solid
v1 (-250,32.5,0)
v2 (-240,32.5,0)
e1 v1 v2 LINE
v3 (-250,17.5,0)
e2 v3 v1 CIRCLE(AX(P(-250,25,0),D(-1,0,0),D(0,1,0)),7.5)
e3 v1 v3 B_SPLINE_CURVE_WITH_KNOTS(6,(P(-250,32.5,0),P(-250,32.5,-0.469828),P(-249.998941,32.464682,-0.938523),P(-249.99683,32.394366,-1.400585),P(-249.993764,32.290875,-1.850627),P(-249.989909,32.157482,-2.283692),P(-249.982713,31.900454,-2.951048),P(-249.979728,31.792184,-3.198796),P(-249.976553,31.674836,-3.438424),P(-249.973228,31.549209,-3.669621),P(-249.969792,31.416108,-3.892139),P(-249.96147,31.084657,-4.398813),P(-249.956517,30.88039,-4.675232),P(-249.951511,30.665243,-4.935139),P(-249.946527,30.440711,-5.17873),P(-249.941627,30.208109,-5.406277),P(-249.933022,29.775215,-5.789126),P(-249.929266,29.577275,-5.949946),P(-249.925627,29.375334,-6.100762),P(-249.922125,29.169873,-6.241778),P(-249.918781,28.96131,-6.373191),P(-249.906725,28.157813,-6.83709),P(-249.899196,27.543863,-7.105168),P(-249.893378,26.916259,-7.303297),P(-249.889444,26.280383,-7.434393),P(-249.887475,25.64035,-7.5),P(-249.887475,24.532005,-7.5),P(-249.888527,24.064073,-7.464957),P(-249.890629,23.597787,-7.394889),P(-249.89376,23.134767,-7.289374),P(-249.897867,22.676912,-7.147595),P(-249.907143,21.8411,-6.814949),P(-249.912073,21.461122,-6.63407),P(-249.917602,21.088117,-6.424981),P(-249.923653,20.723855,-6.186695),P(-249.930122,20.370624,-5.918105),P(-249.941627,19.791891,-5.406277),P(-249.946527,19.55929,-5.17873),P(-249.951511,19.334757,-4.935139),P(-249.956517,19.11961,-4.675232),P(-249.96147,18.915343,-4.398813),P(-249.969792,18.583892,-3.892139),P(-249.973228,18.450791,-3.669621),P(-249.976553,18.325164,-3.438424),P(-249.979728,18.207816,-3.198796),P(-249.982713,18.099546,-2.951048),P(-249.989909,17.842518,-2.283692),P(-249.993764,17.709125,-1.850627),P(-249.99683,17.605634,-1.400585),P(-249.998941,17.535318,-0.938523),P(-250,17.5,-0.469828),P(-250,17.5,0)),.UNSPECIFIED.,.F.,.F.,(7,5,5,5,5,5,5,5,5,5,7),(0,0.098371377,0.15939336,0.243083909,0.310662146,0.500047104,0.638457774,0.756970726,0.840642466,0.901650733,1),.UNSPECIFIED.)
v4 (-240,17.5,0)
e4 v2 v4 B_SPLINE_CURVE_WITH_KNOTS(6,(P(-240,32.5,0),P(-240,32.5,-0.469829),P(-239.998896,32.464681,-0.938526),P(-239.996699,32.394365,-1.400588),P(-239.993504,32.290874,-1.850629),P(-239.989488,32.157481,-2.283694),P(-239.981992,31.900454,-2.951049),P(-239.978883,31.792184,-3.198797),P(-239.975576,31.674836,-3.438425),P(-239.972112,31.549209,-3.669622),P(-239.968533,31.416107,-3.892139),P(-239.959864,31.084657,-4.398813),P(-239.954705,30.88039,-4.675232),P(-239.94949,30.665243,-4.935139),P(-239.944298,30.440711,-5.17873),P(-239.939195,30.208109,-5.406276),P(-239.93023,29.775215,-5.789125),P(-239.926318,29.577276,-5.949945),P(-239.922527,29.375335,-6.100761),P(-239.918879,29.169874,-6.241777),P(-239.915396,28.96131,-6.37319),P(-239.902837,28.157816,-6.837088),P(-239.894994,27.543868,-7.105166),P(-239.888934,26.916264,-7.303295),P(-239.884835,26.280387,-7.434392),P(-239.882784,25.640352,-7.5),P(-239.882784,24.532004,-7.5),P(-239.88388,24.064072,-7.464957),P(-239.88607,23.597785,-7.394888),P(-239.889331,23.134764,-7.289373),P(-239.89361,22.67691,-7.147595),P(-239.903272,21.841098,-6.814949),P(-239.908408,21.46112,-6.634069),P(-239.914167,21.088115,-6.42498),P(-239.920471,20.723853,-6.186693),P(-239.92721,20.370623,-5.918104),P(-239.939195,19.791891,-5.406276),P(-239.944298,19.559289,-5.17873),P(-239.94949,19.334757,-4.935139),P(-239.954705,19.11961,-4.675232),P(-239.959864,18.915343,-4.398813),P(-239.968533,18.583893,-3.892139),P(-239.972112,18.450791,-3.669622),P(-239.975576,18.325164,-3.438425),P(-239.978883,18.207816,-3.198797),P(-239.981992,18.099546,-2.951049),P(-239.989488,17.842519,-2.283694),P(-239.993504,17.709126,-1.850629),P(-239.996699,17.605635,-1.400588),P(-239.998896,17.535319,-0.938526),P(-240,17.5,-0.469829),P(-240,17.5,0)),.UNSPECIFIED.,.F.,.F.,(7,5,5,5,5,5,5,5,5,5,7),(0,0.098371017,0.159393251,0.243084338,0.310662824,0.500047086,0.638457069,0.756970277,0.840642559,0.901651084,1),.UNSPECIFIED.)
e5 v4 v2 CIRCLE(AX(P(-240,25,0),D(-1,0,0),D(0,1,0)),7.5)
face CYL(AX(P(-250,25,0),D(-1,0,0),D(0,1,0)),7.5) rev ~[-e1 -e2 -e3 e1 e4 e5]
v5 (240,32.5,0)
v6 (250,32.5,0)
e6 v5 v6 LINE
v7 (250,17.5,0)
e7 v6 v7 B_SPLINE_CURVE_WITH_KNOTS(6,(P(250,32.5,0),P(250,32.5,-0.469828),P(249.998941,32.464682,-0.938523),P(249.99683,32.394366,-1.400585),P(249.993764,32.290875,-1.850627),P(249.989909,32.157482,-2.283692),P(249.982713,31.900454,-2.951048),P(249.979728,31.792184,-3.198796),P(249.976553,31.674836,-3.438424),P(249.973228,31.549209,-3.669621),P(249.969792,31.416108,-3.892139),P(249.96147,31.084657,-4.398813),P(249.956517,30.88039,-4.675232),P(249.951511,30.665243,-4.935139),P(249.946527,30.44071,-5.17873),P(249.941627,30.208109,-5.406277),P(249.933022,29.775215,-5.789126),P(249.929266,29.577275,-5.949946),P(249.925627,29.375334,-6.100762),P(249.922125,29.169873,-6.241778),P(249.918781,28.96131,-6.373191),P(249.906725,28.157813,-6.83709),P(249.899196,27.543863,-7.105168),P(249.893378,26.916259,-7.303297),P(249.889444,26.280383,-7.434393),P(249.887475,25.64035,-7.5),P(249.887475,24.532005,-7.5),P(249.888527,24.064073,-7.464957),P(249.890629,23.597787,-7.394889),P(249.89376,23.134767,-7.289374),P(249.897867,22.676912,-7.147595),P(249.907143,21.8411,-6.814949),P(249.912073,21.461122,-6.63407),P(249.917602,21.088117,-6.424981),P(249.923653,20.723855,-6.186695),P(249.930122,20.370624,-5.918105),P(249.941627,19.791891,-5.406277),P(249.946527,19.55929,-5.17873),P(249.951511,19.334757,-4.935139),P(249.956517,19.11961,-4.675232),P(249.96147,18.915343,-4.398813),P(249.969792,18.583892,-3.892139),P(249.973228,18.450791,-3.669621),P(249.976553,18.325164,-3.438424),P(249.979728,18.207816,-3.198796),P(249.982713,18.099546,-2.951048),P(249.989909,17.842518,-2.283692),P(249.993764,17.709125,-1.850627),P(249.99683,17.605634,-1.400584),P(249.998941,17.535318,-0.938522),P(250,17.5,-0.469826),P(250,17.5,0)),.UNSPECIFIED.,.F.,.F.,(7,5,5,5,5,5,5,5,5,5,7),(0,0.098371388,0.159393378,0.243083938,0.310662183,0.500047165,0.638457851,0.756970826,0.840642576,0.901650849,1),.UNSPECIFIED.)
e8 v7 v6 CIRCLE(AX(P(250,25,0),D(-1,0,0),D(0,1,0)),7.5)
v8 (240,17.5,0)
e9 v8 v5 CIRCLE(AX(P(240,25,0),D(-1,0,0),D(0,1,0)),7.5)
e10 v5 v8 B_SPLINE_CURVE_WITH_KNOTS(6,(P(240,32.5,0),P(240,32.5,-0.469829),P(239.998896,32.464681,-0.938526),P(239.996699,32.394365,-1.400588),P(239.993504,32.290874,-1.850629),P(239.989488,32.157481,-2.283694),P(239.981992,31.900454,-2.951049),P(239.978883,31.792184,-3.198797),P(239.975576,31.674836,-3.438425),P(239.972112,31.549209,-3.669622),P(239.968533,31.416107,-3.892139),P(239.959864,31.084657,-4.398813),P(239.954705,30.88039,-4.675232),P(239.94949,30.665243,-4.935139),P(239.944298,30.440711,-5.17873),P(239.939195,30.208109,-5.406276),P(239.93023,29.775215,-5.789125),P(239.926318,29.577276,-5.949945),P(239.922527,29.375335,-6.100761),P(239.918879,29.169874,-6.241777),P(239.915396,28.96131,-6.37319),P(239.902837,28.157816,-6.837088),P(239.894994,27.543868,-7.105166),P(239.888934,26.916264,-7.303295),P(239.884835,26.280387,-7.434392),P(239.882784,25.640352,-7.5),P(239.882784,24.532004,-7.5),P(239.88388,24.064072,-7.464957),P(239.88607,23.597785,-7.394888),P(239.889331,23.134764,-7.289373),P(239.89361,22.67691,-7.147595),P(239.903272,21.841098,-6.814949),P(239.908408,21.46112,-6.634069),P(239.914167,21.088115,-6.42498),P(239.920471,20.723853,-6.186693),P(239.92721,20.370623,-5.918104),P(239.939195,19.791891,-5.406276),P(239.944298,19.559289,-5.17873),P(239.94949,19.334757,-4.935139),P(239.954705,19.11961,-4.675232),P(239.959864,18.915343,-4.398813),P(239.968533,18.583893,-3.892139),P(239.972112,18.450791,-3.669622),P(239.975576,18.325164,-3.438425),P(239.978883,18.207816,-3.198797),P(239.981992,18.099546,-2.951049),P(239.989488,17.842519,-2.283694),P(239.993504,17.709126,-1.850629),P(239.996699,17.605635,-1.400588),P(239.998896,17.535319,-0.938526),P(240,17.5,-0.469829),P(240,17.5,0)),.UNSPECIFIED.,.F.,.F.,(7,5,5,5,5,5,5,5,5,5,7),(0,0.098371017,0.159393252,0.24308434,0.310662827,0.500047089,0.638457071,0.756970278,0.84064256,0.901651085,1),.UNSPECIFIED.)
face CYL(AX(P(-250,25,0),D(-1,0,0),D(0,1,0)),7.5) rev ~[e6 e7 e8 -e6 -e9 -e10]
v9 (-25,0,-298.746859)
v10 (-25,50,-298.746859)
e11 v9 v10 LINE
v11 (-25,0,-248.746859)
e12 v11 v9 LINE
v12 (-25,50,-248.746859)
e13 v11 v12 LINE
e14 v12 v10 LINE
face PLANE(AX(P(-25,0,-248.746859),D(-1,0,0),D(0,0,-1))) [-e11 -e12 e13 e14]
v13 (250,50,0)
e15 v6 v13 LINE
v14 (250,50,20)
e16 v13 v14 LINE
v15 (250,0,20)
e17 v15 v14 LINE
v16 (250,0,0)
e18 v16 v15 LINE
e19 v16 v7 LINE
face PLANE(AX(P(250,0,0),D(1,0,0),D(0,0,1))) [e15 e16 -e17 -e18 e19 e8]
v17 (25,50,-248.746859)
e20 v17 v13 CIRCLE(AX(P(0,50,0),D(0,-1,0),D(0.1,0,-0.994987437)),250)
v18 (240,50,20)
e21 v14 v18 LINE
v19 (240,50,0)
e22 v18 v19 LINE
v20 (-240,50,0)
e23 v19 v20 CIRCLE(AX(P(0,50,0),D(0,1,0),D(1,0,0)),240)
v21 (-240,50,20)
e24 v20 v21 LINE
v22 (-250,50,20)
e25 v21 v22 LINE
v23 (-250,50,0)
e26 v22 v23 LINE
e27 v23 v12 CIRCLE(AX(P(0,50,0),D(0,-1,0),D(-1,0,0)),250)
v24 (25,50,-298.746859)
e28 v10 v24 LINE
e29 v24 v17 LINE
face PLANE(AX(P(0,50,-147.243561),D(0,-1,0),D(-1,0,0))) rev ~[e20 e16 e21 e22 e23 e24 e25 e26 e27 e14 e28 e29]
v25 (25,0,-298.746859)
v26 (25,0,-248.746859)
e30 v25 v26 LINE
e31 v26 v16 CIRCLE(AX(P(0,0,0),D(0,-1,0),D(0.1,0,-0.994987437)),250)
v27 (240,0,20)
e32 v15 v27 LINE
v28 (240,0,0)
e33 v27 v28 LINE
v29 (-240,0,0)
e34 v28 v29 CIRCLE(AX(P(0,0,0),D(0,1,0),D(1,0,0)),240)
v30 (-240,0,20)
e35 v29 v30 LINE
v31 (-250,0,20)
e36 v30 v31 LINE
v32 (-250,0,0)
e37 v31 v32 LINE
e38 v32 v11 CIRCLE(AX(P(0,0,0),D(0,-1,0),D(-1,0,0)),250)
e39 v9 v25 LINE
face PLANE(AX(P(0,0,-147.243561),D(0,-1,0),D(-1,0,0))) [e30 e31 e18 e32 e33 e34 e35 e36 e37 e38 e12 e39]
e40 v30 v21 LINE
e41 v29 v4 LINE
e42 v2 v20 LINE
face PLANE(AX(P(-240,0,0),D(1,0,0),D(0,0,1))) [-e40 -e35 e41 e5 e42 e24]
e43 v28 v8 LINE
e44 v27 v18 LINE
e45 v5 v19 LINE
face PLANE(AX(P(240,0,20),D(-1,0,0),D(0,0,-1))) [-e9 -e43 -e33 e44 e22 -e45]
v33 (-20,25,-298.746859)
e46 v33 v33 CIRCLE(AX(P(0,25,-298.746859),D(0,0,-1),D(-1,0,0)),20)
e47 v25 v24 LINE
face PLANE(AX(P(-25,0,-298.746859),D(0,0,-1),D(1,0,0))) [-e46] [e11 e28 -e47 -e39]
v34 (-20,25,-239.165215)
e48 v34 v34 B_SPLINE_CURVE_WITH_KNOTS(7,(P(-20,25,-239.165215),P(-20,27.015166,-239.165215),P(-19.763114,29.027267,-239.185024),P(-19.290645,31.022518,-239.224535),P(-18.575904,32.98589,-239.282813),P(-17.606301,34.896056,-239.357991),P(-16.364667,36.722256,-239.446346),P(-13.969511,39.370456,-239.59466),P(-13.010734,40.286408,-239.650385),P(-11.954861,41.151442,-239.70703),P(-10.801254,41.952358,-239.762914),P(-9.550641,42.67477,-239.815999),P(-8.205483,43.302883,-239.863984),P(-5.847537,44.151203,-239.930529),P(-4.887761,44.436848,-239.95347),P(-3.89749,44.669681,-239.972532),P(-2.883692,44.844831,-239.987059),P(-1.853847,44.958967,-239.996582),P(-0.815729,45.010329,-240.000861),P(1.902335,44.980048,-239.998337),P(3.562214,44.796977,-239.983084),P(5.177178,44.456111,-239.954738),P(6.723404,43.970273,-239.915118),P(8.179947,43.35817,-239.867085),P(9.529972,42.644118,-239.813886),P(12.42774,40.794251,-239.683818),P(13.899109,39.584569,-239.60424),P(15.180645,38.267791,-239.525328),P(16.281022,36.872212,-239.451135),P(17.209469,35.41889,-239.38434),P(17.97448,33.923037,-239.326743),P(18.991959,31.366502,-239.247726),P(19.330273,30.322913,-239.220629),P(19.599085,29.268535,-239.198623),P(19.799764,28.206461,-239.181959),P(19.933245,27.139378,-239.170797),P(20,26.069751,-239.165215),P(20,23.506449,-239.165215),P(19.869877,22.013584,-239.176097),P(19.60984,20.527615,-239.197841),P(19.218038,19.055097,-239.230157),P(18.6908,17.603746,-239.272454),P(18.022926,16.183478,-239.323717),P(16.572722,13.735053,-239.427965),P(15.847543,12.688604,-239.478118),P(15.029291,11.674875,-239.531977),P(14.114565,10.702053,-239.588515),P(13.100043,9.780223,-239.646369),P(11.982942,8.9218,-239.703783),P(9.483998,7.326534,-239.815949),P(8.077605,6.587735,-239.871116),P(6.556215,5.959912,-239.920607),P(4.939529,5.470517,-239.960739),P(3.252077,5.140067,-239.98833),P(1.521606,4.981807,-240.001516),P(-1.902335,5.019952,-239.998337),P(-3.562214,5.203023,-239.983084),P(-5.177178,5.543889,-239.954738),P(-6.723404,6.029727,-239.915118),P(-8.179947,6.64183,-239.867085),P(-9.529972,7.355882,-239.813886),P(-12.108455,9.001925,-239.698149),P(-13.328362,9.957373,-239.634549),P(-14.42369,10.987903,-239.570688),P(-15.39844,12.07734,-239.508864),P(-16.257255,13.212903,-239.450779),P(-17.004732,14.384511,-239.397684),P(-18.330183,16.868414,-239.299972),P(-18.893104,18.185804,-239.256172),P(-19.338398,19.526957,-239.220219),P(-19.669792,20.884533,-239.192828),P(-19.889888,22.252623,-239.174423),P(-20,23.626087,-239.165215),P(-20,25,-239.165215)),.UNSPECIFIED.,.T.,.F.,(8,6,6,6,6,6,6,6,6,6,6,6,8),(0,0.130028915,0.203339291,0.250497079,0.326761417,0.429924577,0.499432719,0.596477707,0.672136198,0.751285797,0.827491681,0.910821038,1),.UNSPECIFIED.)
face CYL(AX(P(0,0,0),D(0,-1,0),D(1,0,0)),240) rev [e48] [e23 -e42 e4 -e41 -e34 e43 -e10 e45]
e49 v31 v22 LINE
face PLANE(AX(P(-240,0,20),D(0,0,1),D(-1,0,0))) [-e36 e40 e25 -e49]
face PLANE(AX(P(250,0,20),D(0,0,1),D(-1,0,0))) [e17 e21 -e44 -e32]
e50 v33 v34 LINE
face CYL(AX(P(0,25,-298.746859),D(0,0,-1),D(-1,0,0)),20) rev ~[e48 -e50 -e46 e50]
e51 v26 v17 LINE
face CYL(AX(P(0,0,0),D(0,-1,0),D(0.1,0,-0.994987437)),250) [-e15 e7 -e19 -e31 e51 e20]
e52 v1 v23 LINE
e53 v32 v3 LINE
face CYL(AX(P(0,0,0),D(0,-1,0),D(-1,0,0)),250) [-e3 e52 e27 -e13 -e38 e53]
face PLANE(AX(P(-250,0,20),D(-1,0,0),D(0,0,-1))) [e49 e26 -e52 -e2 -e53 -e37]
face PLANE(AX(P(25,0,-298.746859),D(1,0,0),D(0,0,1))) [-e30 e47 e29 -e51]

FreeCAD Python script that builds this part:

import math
import FreeCAD as App
import Part
import Sketcher
from FreeCAD import Vector
Q = App.Units.Quantity

doc = App.newDocument("Part")
body = doc.addObject("PartDesign::Body", "Body")

# Sketch on XZ plane
sketch1 = body.newObject("Sketcher::SketchObject", "Sketch")
sketch1.AttachmentSupport = (doc.getObject("XZ_Plane"), [""])
sketch1.MapMode = "FlatFace"
sketch1.addGeometry([
    Part.LineSegment(Vector(25, -298.746859, 0), Vector(-25, -298.746859, 0)),  # 0
    Part.LineSegment(Vector(-25, -298.746859, 0), Vector(-25, -248.746859, 0)),  # 1
    Part.ArcOfCircle(Part.Circle(Vector(0, 0, 0), Vector(0, 0, 1), 250), math.radians(-180), math.radians(-95.73917)),  # 2
    Part.LineSegment(Vector(-250, 0, 0), Vector(-250, 20, 0)),  # 3
    Part.LineSegment(Vector(-250, 20, 0), Vector(-240, 20, 0)),  # 4
    Part.LineSegment(Vector(-240, 20, 0), Vector(-240, 0, 0)),  # 5
    Part.ArcOfCircle(Part.Circle(Vector(0, 0, 0), Vector(0, 0, 1), 240), math.radians(180), math.radians(360)),  # 6
    Part.LineSegment(Vector(240, 0, 0), Vector(240, 20, 0)),  # 7
    Part.LineSegment(Vector(240, 20, 0), Vector(250, 20, 0)),  # 8
    Part.LineSegment(Vector(250, 20, 0), Vector(250, 0, 0)),  # 9
    Part.ArcOfCircle(Part.Circle(Vector(0, 0, 0), Vector(0, 0, 1), 250), math.radians(-84.26083), math.radians(0)),  # 10
    Part.LineSegment(Vector(25, -248.746859, 0), Vector(25, -298.746859, 0)),  # 11
], False)
sketch1.addConstraint([
    Sketcher.Constraint("Coincident", 0, 2, 1, 1),
    Sketcher.Constraint("Coincident", 1, 2, 2, 2),
    Sketcher.Constraint("Tangent", 2, 1, 3, 1),
    Sketcher.Constraint("Coincident", 3, 2, 4, 1),
    Sketcher.Constraint("Coincident", 4, 2, 5, 1),
    Sketcher.Constraint("Tangent", 5, 2, 6, 1),
    Sketcher.Constraint("Tangent", 6, 2, 7, 1),
    Sketcher.Constraint("Coincident", 7, 2, 8, 1),
    Sketcher.Constraint("Coincident", 8, 2, 9, 1),
    Sketcher.Constraint("Tangent", 9, 2, 10, 2),
    Sketcher.Constraint("Coincident", 10, 1, 11, 1),
    Sketcher.Constraint("Coincident", 11, 2, 0, 1),
    Sketcher.Constraint("Horizontal", 0),
    Sketcher.Constraint("Vertical", 1),
    Sketcher.Constraint("Vertical", 3),
    Sketcher.Constraint("Horizontal", 4),
    Sketcher.Constraint("Vertical", 5),
    Sketcher.Constraint("Vertical", 7),
    Sketcher.Constraint("Horizontal", 8),
    Sketcher.Constraint("Vertical", 9),
    Sketcher.Constraint("Vertical", 11),
    Sketcher.Constraint("Coincident", 2, 3, -1, 1),
    Sketcher.Constraint("Coincident", 6, 3, -1, 1),
    Sketcher.Constraint("Coincident", 10, 3, -1, 1),
    Sketcher.Constraint("Equal", 2, 10),
    Sketcher.Constraint("Horizontal", 4, 2, 7, 2),
    Sketcher.Constraint("Horizontal", 1, 2, 10, 1),
    Sketcher.Constraint("Equal", 0, 1),
    Sketcher.Constraint("Radius", 2, Q("250 mm")),
    Sketcher.Constraint("Radius", 6, Q("240 mm")),
    Sketcher.Constraint("DistanceX", 0, 2, 0, 1, Q("50 mm")),
    Sketcher.Constraint("DistanceY", 3, 1, 3, 2, Q("20 mm")),
])
pad1 = body.newObject("PartDesign::Pad", "Pad")
pad1.Profile = sketch1
pad1.Length = 50
pad1.Reversed = True

# Sketch on XY plane
sketch2 = body.newObject("Sketcher::SketchObject", "Sketch001")
sketch2.AttachmentSupport = (doc.getObject("XY_Plane"), [""])
sketch2.MapMode = "FlatFace"
sketch2.AttachmentOffset = App.Placement(Vector(0, 0, -298.746859), App.Rotation())
sketch2.addGeometry(Part.Circle(Vector(0, 25, 0), Vector(0, 0, 1), 20), False)
sketch2.addConstraint([
    Sketcher.Constraint("PointOnObject", 0, 3, -2),
    Sketcher.Constraint("Diameter", 0, Q("40 mm")),
    Sketcher.Constraint("DistanceY", -1, 1, 0, 3, Q("25 mm")),
])
pocket1 = body.newObject("PartDesign::Pocket", "Pocket")
pocket1.Profile = sketch2
pocket1.Type = "ThroughAll"
pocket1.Reversed = True

# Sketch on YZ plane
sketch3 = body.newObject("Sketcher::SketchObject", "Sketch002")
sketch3.AttachmentSupport = (doc.getObject("YZ_Plane"), [""])
sketch3.MapMode = "FlatFace"
sketch3.AttachmentOffset = App.Placement(Vector(0, 0, -250), App.Rotation())
sketch3.addGeometry(Part.Circle(Vector(25, 0, 0), Vector(0, 0, 1), 7.5), False)
sketch3.addConstraint([
    Sketcher.Constraint("PointOnObject", 0, 3, -1),
    Sketcher.Constraint("Diameter", 0, Q("15 mm")),
    Sketcher.Constraint("DistanceX", -1, 1, 0, 3, Q("25 mm")),
])
pocket2 = body.newObject("PartDesign::Pocket", "Pocket001")
pocket2.Profile = sketch3
pocket2.Type = "ThroughAll"
pocket2.Reversed = True

doc.recompute()
